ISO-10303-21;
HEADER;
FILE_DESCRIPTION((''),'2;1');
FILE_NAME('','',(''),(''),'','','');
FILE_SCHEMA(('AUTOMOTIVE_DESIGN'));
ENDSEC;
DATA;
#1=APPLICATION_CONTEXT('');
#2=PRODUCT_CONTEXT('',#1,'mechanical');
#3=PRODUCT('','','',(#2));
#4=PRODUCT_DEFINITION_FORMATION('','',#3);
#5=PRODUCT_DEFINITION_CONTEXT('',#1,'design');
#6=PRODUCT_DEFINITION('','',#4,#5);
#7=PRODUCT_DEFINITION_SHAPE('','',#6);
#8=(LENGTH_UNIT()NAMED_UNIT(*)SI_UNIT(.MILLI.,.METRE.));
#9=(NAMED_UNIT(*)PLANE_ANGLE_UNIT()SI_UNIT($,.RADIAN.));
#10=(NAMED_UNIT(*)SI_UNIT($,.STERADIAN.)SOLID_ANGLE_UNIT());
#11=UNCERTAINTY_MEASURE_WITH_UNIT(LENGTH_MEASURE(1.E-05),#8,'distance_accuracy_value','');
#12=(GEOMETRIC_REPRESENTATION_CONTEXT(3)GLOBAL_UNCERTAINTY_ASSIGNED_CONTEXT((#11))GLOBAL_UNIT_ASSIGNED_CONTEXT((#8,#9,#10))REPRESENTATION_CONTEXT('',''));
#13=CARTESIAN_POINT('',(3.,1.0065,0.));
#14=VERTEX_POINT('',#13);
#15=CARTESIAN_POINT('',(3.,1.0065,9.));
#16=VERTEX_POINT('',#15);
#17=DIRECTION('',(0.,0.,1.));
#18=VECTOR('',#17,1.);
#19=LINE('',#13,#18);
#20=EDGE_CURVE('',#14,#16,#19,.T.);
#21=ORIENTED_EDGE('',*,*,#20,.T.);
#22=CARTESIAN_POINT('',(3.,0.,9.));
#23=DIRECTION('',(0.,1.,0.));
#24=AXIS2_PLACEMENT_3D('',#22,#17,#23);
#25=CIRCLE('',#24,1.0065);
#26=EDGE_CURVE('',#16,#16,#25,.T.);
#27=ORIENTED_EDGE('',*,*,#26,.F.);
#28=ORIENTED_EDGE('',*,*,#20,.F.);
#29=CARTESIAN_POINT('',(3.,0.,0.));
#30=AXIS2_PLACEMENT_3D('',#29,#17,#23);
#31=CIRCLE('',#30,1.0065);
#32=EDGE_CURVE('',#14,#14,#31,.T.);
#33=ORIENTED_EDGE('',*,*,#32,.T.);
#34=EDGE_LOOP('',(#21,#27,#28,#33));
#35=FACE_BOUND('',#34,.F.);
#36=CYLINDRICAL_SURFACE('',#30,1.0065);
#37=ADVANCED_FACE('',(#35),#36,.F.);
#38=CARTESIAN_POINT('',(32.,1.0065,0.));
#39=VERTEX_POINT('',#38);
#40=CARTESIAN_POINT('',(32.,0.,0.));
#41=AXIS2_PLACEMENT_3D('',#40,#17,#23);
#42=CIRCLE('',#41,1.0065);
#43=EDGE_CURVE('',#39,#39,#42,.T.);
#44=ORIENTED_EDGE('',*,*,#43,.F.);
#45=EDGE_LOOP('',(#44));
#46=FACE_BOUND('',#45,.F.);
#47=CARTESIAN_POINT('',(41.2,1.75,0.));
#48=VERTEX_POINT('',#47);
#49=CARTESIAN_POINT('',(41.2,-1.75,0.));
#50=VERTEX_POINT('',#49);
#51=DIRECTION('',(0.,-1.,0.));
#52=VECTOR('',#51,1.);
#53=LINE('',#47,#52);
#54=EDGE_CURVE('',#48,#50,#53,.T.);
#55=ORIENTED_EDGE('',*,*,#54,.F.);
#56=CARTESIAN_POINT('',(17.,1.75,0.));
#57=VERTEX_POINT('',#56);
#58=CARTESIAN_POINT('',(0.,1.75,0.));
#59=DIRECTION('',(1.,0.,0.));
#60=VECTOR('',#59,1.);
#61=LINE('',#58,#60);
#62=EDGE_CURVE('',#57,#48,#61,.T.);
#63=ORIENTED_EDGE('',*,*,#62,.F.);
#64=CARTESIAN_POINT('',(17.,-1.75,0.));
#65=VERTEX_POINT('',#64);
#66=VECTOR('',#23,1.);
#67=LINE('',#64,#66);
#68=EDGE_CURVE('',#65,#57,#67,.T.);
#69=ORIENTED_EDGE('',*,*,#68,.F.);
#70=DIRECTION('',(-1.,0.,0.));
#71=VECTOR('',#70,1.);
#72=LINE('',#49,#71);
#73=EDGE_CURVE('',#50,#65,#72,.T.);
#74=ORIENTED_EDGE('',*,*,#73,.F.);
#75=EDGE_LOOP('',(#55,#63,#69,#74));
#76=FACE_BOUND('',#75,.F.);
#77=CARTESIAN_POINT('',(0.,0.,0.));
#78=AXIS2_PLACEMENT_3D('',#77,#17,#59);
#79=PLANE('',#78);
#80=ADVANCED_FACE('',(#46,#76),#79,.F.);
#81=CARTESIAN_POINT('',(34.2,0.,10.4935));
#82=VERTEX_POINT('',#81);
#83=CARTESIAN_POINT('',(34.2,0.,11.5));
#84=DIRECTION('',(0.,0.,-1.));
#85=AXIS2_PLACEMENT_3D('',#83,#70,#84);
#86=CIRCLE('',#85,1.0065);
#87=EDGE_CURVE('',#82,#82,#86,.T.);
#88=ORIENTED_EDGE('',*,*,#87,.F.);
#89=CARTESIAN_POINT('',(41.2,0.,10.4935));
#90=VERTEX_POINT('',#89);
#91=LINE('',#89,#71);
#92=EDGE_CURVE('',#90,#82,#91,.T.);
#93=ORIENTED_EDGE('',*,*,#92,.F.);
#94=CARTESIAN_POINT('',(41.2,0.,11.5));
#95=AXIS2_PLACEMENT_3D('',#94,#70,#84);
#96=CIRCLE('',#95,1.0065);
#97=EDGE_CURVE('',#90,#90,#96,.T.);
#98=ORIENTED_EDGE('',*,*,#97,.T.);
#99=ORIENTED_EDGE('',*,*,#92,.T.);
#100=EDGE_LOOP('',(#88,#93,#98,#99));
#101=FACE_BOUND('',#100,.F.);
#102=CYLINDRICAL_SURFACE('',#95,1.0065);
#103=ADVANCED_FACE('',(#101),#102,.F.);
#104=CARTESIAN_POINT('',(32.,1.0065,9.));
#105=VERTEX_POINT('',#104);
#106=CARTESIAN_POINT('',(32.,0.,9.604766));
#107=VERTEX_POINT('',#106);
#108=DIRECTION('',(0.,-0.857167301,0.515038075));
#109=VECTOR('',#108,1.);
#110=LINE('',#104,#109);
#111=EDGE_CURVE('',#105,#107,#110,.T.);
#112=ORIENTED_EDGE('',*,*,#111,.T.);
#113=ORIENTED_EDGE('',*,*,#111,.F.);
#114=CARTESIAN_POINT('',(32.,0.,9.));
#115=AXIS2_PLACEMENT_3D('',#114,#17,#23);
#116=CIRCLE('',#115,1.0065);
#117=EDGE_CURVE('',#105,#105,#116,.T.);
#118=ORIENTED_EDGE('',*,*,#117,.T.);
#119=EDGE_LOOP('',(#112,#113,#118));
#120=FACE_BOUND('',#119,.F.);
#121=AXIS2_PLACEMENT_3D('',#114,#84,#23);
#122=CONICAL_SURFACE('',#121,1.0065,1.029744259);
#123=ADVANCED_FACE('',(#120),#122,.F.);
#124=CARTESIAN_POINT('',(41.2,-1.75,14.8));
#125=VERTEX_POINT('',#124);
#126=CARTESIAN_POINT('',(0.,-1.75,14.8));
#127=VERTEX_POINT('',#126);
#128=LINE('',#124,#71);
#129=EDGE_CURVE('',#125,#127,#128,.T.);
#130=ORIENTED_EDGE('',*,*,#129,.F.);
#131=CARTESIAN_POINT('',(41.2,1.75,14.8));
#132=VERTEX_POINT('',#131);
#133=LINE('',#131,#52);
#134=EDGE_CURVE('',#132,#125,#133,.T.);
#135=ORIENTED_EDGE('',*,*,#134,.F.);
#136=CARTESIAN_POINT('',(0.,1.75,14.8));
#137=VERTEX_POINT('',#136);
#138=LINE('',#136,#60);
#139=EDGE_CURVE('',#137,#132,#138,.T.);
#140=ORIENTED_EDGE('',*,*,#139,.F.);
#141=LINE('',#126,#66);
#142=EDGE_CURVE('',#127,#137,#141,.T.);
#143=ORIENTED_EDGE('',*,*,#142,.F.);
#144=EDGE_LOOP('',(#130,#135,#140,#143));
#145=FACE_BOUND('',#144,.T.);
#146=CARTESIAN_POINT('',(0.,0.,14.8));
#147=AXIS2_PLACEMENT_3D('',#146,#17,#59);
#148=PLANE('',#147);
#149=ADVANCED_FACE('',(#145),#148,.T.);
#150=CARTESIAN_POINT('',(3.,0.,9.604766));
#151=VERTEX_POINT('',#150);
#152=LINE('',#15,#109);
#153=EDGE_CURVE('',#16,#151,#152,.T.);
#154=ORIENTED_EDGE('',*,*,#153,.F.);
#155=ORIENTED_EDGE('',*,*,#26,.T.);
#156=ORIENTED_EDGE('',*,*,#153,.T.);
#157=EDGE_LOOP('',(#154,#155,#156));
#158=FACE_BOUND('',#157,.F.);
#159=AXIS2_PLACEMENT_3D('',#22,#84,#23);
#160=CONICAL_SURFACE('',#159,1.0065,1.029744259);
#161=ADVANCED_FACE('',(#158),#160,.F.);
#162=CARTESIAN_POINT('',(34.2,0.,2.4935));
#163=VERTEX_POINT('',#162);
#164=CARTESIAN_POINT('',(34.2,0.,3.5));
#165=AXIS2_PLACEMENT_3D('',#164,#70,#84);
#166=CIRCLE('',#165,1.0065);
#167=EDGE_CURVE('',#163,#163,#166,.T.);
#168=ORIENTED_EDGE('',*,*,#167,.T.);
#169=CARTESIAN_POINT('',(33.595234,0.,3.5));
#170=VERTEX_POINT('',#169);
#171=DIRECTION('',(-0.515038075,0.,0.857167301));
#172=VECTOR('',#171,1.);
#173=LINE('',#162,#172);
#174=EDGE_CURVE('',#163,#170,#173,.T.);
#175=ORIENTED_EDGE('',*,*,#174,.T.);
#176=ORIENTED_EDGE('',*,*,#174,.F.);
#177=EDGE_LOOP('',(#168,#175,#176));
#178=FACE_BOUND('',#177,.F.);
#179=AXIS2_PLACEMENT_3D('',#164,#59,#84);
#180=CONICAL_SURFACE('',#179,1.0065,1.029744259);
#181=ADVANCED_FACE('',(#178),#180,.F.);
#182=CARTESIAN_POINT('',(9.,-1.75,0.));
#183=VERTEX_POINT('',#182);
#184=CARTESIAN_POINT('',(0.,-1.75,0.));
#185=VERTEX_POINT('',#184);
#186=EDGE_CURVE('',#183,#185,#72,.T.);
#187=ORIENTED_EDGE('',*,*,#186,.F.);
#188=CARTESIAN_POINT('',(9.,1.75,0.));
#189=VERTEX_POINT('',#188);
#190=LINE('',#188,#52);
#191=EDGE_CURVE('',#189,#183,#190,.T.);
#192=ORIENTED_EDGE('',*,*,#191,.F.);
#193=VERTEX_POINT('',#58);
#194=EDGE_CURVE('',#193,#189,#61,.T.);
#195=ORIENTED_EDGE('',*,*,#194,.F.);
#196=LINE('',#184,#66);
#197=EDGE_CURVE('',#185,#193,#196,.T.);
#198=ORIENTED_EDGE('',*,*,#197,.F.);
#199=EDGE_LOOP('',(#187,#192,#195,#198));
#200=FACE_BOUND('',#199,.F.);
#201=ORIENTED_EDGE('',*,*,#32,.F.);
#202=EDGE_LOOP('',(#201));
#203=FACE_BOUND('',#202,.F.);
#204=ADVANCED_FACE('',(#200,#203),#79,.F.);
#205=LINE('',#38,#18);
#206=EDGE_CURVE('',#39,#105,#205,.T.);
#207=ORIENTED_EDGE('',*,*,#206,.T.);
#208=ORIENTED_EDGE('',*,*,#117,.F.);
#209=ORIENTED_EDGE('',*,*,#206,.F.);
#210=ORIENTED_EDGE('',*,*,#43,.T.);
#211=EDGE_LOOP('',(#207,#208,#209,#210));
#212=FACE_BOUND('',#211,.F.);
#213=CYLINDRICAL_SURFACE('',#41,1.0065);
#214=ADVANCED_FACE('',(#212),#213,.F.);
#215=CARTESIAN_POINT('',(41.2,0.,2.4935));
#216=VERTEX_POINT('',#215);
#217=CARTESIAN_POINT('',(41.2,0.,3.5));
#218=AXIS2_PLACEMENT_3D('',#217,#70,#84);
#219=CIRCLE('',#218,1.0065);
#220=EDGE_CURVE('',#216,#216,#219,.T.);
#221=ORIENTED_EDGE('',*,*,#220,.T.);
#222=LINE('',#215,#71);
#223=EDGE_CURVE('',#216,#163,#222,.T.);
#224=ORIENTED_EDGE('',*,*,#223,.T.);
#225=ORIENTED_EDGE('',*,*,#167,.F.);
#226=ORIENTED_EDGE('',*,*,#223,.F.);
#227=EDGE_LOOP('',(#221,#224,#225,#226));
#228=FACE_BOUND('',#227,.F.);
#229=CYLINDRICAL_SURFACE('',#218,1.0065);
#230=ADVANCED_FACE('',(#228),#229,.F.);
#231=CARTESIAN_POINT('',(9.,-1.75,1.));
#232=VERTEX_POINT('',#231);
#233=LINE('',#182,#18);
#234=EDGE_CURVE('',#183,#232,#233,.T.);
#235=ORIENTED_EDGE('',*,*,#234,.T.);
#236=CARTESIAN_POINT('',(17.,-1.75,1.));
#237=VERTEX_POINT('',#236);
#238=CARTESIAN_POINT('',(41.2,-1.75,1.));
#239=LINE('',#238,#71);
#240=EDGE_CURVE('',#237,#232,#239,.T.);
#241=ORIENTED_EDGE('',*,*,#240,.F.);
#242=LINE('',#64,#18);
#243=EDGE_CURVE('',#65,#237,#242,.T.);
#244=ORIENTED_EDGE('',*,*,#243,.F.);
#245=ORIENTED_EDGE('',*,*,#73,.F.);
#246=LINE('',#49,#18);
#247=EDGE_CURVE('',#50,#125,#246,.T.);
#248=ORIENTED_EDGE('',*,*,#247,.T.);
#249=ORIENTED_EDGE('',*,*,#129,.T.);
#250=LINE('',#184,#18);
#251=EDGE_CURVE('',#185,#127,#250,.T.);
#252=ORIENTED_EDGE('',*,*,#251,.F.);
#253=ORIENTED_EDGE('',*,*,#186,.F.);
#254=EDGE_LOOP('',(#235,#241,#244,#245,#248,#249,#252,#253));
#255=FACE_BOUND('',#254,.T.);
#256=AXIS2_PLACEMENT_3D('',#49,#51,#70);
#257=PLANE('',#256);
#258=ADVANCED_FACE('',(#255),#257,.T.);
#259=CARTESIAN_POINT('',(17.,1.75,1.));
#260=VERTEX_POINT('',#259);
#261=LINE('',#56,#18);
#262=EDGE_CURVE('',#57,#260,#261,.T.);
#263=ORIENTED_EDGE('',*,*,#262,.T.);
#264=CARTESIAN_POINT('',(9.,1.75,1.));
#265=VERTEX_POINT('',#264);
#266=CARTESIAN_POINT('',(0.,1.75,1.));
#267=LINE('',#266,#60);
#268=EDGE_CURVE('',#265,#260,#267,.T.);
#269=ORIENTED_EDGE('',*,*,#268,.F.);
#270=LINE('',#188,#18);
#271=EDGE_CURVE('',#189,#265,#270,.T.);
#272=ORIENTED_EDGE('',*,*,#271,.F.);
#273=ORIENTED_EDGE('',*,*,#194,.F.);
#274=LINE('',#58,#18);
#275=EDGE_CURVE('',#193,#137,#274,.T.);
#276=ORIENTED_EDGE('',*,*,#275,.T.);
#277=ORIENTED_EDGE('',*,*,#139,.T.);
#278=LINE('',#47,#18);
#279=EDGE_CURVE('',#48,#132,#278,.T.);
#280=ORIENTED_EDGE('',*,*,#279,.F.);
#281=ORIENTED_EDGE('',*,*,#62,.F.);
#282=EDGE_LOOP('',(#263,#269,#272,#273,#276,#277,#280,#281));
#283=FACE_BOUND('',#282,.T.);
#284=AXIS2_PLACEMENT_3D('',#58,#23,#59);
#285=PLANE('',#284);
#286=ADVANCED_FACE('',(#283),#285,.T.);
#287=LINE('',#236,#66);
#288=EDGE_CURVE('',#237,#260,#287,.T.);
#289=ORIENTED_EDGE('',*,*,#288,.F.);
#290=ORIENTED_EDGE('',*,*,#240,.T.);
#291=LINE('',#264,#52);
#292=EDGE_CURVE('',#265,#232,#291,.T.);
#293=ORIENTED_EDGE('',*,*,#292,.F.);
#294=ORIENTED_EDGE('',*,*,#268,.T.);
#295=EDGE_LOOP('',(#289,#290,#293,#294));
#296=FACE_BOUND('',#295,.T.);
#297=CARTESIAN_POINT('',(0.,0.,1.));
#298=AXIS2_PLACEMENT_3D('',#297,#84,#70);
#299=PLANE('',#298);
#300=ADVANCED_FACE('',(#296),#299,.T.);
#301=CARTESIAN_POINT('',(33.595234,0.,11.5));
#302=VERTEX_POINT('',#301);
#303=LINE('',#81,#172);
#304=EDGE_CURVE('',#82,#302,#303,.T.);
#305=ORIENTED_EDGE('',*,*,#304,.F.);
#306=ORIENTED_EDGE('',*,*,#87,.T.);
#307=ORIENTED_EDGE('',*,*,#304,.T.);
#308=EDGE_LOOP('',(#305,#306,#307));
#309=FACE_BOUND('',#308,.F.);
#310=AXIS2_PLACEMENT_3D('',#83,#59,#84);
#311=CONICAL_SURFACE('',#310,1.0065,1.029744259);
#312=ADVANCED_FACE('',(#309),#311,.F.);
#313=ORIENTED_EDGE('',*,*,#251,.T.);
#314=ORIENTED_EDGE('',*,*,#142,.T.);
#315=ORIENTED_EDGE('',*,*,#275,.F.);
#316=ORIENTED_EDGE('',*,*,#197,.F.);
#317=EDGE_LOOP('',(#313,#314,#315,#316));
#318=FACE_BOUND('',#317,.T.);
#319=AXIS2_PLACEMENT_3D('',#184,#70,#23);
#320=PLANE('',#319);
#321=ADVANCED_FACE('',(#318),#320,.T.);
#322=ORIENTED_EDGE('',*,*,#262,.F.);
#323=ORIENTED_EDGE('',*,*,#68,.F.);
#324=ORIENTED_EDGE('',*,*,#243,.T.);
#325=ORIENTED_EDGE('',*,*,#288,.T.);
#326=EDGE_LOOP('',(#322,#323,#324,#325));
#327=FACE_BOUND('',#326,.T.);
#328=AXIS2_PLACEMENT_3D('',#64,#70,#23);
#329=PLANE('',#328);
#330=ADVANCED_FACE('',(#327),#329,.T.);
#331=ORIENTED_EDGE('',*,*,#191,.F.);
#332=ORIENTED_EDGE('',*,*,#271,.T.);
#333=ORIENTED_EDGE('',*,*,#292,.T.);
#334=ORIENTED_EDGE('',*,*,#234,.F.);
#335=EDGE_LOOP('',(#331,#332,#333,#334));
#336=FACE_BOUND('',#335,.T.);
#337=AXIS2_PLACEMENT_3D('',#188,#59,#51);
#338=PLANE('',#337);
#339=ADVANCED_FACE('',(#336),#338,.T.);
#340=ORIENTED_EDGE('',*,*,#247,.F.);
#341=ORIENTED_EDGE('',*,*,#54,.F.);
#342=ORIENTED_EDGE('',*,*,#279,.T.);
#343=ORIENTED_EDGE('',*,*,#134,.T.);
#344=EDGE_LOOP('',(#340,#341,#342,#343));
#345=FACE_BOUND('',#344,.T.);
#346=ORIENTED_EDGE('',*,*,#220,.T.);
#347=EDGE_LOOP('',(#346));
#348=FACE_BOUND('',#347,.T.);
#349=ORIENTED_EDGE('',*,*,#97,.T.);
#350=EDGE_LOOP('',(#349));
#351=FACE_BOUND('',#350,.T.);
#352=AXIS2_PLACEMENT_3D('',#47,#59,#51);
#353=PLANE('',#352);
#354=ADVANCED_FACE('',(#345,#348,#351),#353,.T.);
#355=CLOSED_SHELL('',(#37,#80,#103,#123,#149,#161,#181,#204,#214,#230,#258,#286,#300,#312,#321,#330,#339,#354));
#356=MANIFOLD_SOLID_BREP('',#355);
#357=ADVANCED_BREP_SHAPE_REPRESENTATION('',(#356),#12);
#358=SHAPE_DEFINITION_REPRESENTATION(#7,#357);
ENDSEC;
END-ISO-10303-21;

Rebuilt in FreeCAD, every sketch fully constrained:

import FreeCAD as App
import Part
import Sketcher
from FreeCAD import Vector
Q = App.Units.Quantity

doc = App.newDocument("Part")
body = doc.addObject("PartDesign::Body", "Body")

sketch1 = body.newObject("Sketcher::SketchObject", "Sketch")
sketch1.AttachmentSupport = (doc.getObject("XY_Plane"), [""])
sketch1.MapMode = "FlatFace"
sketch1.addGeometry([
    Part.LineSegment(Vector(41.2, 1.8, 0), Vector(0, 1.8, 0)),
    Part.LineSegment(Vector(0, 1.8, 0), Vector(0, -1.8, 0)),
    Part.LineSegment(Vector(0, -1.8, 0), Vector(41.2, -1.8, 0)),
    Part.LineSegment(Vector(41.2, -1.8, 0), Vector(41.2, 1.8, 0)),
], False)
sketch1.addConstraint([
    Sketcher.Constraint("Coincident", 0, 2, 1, 1),
    Sketcher.Constraint("Coincident", 1, 2, 2, 1),
    Sketcher.Constraint("Coincident", 2, 2, 3, 1),
    Sketcher.Constraint("Coincident", 3, 2, 0, 1),
    Sketcher.Constraint("Horizontal", 0),
    Sketcher.Constraint("Vertical", 1),
    Sketcher.Constraint("Horizontal", 2),
    Sketcher.Constraint("Vertical", 3),
    Sketcher.Constraint("Symmetric", 0, 2, 1, 2, -1, 1),
    Sketcher.Constraint("DistanceX", 0, 2, 0, 1, Q("41.2 mm")),
    Sketcher.Constraint("DistanceY", 1, 2, 1, 1, Q("3.5 mm")),
])
pad1 = body.newObject("PartDesign::Pad", "Pad")
pad1.Profile = sketch1
pad1.Length = 14.8

sketch2 = body.newObject("Sketcher::SketchObject", "Sketch001")
sketch2.AttachmentSupport = (doc.getObject("XY_Plane"), [""])
sketch2.MapMode = "FlatFace"
sketch2.addGeometry([
    Part.Circle(Vector(3, 0, 0), Vector(0, 0, 1), 1),
    Part.Circle(Vector(32, 0, 0), Vector(0, 0, 1), 1),
], False)
sketch2.addConstraint([
    Sketcher.Constraint("Equal", 0, 1),
    Sketcher.Constraint("PointOnObject", 0, 3, -1),
    Sketcher.Constraint("PointOnObject", 1, 3, -1),
    Sketcher.Constraint("Diameter", 0, Q("2.013 mm")),
    Sketcher.Constraint("DistanceX", -1, 1, 0, 3, Q("3 mm")),
    Sketcher.Constraint("DistanceX", -1, 1, 1, 3, Q("32 mm")),
])
doc.recompute()
hole = body.newObject("PartDesign::Hole", "Hole")
hole.Profile = sketch2
hole.ThreadType = "None"
hole.Diameter = 2.013
hole.DepthType = "Dimension"
hole.Depth = 9
hole.DrillPoint = "Angled"
hole.DrillPointAngle = 118
hole.Reversed = True

sketch3 = body.newObject("Sketcher::SketchObject", "Sketch002")
sketch3.AttachmentSupport = (doc.getObject("XY_Plane"), [""])
sketch3.MapMode = "FlatFace"
sketch3.addGeometry([
    Part.LineSegment(Vector(9, -1.8, 0), Vector(9, 1.8, 0)),
    Part.LineSegment(Vector(9, 1.8, 0), Vector(17, 1.8, 0)),
    Part.LineSegment(Vector(17, 1.8, 0), Vector(17, -1.8, 0)),
    Part.LineSegment(Vector(17, -1.8, 0), Vector(9, -1.8, 0)),
], False)
sketch3.addConstraint([
    Sketcher.Constraint("Coincident", 0, 2, 1, 1),
    Sketcher.Constraint("Coincident", 1, 2, 2, 1),
    Sketcher.Constraint("Coincident", 2, 2, 3, 1),
    Sketcher.Constraint("Coincident", 3, 2, 0, 1),
    Sketcher.Constraint("Vertical", 0),
    Sketcher.Constraint("Horizontal", 1),
    Sketcher.Constraint("Vertical", 2),
    Sketcher.Constraint("Horizontal", 3),
    Sketcher.Constraint("DistanceX", 1, 1, 1, 2, Q("8 mm")),
    Sketcher.Constraint("DistanceY", 0, 1, 0, 2, Q("3.5 mm")),
    Sketcher.Constraint("DistanceX", -1, 1, 0, 2, Q("9 mm")),
    Sketcher.Constraint("DistanceY", -1, 1, 0, 2, Q("1.75 mm")),
])
pocket1 = body.newObject("PartDesign::Pocket", "Pocket")
pocket1.Profile = sketch3
pocket1.Length = 1
pocket1.Reversed = True

sketch4 = body.newObject("Sketcher::SketchObject", "Sketch003")
sketch4.AttachmentSupport = (doc.getObject("YZ_Plane"), [""])
sketch4.MapMode = "FlatFace"
sketch4.AttachmentOffset = App.Placement(Vector(0, 0, 41.2), App.Rotation())
sketch4.addGeometry([
    Part.Circle(Vector(0, 11.5, 0), Vector(0, 0, 1), 1),
    Part.Circle(Vector(0, 3.5, 0), Vector(0, 0, 1), 1),
], False)
sketch4.addConstraint([
    Sketcher.Constraint("Equal", 0, 1),
    Sketcher.Constraint("PointOnObject", 0, 3, -2),
    Sketcher.Constraint("PointOnObject", 1, 3, -2),
    Sketcher.Constraint("Diameter", 0, Q("2.013 mm")),
    Sketcher.Constraint("DistanceY", 1, 3, 0, 3, Q("8 mm")),
    Sketcher.Constraint("DistanceY", -1, 1, 0, 3, Q("11.5 mm")),
])
doc.recompute()
hole2 = body.newObject("PartDesign::Hole", "Hole001")
hole2.Profile = sketch4
hole2.ThreadType = "None"
hole2.Diameter = 2.013
hole2.DepthType = "Dimension"
hole2.Depth = 7
hole2.DrillPoint = "Angled"
hole2.DrillPointAngle = 118

doc.recompute()
